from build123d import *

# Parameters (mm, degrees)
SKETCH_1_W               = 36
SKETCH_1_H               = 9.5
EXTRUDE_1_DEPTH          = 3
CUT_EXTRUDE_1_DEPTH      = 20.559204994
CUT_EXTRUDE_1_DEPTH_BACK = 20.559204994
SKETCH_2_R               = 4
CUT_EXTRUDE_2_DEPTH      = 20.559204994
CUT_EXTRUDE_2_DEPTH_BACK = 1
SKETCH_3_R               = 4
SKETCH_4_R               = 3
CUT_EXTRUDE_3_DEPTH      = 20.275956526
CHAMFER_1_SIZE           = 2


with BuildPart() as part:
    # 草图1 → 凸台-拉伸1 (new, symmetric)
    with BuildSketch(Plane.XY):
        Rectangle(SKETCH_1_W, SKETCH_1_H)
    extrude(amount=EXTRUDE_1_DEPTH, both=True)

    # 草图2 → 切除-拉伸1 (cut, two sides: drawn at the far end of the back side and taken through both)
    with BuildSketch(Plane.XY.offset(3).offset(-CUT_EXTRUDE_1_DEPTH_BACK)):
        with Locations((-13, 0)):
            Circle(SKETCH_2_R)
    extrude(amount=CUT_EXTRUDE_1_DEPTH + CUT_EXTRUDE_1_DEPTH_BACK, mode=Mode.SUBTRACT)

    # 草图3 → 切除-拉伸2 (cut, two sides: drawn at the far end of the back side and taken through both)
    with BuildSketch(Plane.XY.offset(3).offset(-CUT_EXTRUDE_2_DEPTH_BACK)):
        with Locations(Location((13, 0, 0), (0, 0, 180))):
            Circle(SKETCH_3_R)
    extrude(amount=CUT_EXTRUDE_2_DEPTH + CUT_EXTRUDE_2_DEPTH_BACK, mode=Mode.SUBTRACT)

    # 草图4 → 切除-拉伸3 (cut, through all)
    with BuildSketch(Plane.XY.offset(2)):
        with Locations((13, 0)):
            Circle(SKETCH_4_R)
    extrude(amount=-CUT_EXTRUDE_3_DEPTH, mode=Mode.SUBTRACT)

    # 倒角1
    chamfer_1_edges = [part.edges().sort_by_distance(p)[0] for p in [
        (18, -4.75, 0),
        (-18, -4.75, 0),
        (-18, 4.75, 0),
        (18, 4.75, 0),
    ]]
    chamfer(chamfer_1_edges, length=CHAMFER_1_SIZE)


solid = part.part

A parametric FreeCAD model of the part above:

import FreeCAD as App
import Part
import Sketcher


def edges_at(feature, points):
    """Names of the edges that pass closest to the given points."""
    edges = feature.Shape.Edges
    near = lambda p: min(range(len(edges)), key=lambda i: edges[i].distToShape(Part.Vertex(*p))[0])
    return sorted({f"Edge{near(p) + 1}" for p in points})

doc = App.newDocument("Part")
params = doc.addObject("Spreadsheet::Sheet", "Params")
for row, (alias, value) in enumerate([
    ("sketch1_width", "36 mm"),
    ("sketch1_height", "9.5 mm"),
    ("pad1_length", "6 mm"),
    ("sketch2_diameter", "8 mm"),
    ("sketch3_diameter", "8 mm"),
    ("pocket2_length", "20.559205 mm"),
    ("pocket2_length2", "1 mm"),
    ("sketch4_diameter", "6 mm"),
    ("chamfer_size", "2 mm"),
], start=1):
    params.set(f"A{row}", alias)
    params.set(f"B{row}", "=" + value)
    params.setAlias(f"B{row}", alias)

body = doc.addObject("PartDesign::Body", "Body")

# Sketch on XY plane
sketch1 = body.newObject("Sketcher::SketchObject", "Sketch")
sketch1.AttachmentSupport = (doc.getObject("XY_Plane"), [""])
sketch1.MapMode = "FlatFace"
sketch1.addGeometry([
    Part.LineSegment(App.Vector(-18, 5, 0), App.Vector(-18, -5, 0)),
    Part.LineSegment(App.Vector(-18, -5, 0), App.Vector(18, -5, 0)),
    Part.LineSegment(App.Vector(18, -5, 0), App.Vector(18, 5, 0)),
    Part.LineSegment(App.Vector(18, 5, 0), App.Vector(-18, 5, 0)),
], False)
sketch1.addConstraint([
    Sketcher.Constraint("Coincident", 0, 2, 1, 1),
    Sketcher.Constraint("Coincident", 1, 2, 2, 1),
    Sketcher.Constraint("Coincident", 2, 2, 3, 1),
    Sketcher.Constraint("Coincident", 3, 2, 0, 1),
    Sketcher.Constraint("Vertical", 0),
    Sketcher.Constraint("Horizontal", 1),
    Sketcher.Constraint("Vertical", 2),
    Sketcher.Constraint("Horizontal", 3),
    Sketcher.Constraint("Symmetric", 0, 2, 2, 2, -1, 1),
    Sketcher.Constraint("DistanceX", 1, 1, 1, 2, 36.0),
    Sketcher.Constraint("DistanceY", 0, 2, 0, 1, 9.5),
])
sketch1.setExpression("Constraints[9]", "Params.sketch1_width")
sketch1.setExpression("Constraints[10]", "Params.sketch1_height")
pad1 = body.newObject("PartDesign::Pad", "Pad")
pad1.Profile = sketch1
pad1.setExpression("Length", "Params.pad1_length")
pad1.Midplane = True

# Sketch on XY plane
sketch2 = body.newObject("Sketcher::SketchObject", "Sketch001")
sketch2.AttachmentSupport = (doc.getObject("XY_Plane"), [""])
sketch2.MapMode = "FlatFace"
sketch2.AttachmentOffset = App.Placement(App.Vector(0, 0, 3), App.Rotation())
sketch2.addGeometry(Part.Circle(App.Vector(-13, 0, 0), App.Vector(0, 0, 1), 4), False)
sketch2.addConstraint([
    Sketcher.Constraint("PointOnObject", 0, 3, -1),
    Sketcher.Constraint("Diameter", 0, 8.0),
    Sketcher.Constraint("DistanceX", 0, 3, -1, 1, 13.0),
])
sketch2.setExpression("Constraints[1]", "Params.sketch2_diameter")
pocket1 = body.newObject("PartDesign::Pocket", "Pocket")
pocket1.Profile = sketch2
pocket1.Type = "ThroughAll"
pocket1.Midplane = True

# Sketch on XY plane
sketch3 = body.newObject("Sketcher::SketchObject", "Sketch002")
sketch3.AttachmentSupport = (doc.getObject("XY_Plane"), [""])
sketch3.MapMode = "FlatFace"
sketch3.AttachmentOffset = App.Placement(App.Vector(0, 0, 3), App.Rotation())
sketch3.addGeometry(Part.Circle(App.Vector(13, 0, 0), App.Vector(0, 0, 1), 4), False)
sketch3.addConstraint([
    Sketcher.Constraint("PointOnObject", 0, 3, -1),
    Sketcher.Constraint("Diameter", 0, 8.0),
    Sketcher.Constraint("DistanceX", -1, 1, 0, 3, 13.0),
])
sketch3.setExpression("Constraints[1]", "Params.sketch3_diameter")
pocket2 = body.newObject("PartDesign::Pocket", "Pocket001")
pocket2.Profile = sketch3
pocket2.Type = "TwoLengths"
pocket2.setExpression("Length", "Params.pocket2_length")
pocket2.setExpression("Length2", "Params.pocket2_length2")
pocket2.Reversed = True

# Sketch on XY plane
sketch4 = body.newObject("Sketcher::SketchObject", "Sketch003")
sketch4.AttachmentSupport = (doc.getObject("XY_Plane"), [""])
sketch4.MapMode = "FlatFace"
sketch4.AttachmentOffset = App.Placement(App.Vector(0, 0, 2), App.Rotation())
sketch4.addGeometry(Part.Circle(App.Vector(13, 0, 0), App.Vector(0, 0, 1), 3), False)
sketch4.addConstraint([
    Sketcher.Constraint("PointOnObject", 0, 3, -1),
    Sketcher.Constraint("Diameter", 0, 6.0),
    Sketcher.Constraint("DistanceX", -1, 1, 0, 3, 13.0),
])
sketch4.setExpression("Constraints[1]", "Params.sketch4_diameter")
pocket3 = body.newObject("PartDesign::Pocket", "Pocket002")
pocket3.Profile = sketch4
pocket3.Type = "ThroughAll"
doc.recompute()

chamfer = body.newObject("PartDesign::Chamfer", "Chamfer")
chamfer.Base = (pocket3, edges_at(pocket3, [
    (18, -4.75, 0),
    (-18, -4.75, 0),
    (-18, 4.75, 0),
    (18, 4.75, 0),
]))
chamfer.setExpression("Size", "Params.chamfer_size")

doc.recompute()
